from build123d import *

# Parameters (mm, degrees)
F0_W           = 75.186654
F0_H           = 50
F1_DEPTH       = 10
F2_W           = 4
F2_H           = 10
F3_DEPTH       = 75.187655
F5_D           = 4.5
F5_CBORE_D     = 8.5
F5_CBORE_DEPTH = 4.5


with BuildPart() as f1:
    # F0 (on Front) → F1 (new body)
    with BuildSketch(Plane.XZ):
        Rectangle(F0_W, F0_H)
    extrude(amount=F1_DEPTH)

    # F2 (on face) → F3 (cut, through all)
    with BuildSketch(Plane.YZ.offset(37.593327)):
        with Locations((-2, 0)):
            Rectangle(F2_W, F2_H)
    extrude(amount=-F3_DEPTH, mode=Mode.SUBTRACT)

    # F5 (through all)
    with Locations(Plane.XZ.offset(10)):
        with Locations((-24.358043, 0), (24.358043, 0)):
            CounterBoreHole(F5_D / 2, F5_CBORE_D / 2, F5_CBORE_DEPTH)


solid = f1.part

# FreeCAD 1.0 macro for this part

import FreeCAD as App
import Part
import Sketcher
from FreeCAD import Vector
Q = App.Units.Quantity

doc = App.newDocument("Part")
body = doc.addObject("PartDesign::Body", "Body")

# Sketch on XZ plane
sketch1 = doc.addObject("Sketcher::SketchObject", "Sketch")
body.addObject(sketch1)
sketch1.AttachmentSupport = (doc.XZ_Plane, [""])
sketch1.MapMode = "FlatFace"
sketch1.addGeometry([
    Part.LineSegment(Vector(-38, 25, 0), Vector(-38, -25, 0)),
    Part.LineSegment(Vector(-38, -25, 0), Vector(38, -25, 0)),
    Part.LineSegment(Vector(38, -25, 0), Vector(38, 25, 0)),
    Part.LineSegment(Vector(38, 25, 0), Vector(-38, 25, 0)),
], False)
sketch1.addConstraint([
    Sketcher.Constraint("Coincident", 0, 2, 1, 1),
    Sketcher.Constraint("Coincident", 1, 2, 2, 1),
    Sketcher.Constraint("Coincident", 2, 2, 3, 1),
    Sketcher.Constraint("Coincident", 3, 2, 0, 1),
    Sketcher.Constraint("Vertical", 0),
    Sketcher.Constraint("Horizontal", 1),
    Sketcher.Constraint("Vertical", 2),
    Sketcher.Constraint("Horizontal", 3),
    Sketcher.Constraint("Symmetric", 0, 2, 2, 2, -1, 1),
    Sketcher.Constraint("DistanceY", 0, 2, 0, 1, Q("50 mm")),
    Sketcher.Constraint("DistanceX", 1, 1, 1, 2, Q("75.186654 mm")),
])
pad1 = doc.addObject("PartDesign::Pad", "Pad")
body.addObject(pad1)
pad1.Profile = sketch1
pad1.Length = 10

# Sketch on YZ plane
sketch2 = doc.addObject("Sketcher::SketchObject", "Sketch001")
body.addObject(sketch2)
sketch2.AttachmentSupport = (doc.YZ_Plane, [""])
sketch2.MapMode = "FlatFace"
sketch2.AttachmentOffset = App.Placement(Vector(0, 0, 37.593327), App.Rotation())
sketch2.addGeometry([
    Part.LineSegment(Vector(-4, 5, 0), Vector(-4, -5, 0)),
    Part.LineSegment(Vector(-4, -5, 0), Vector(0, -5, 0)),
    Part.LineSegment(Vector(0, -5, 0), Vector(0, 5, 0)),
    Part.LineSegment(Vector(0, 5, 0), Vector(-4, 5, 0)),
], False)
sketch2.addConstraint([
    Sketcher.Constraint("Coincident", 0, 2, 1, 1),
    Sketcher.Constraint("Coincident", 1, 2, 2, 1),
    Sketcher.Constraint("Coincident", 2, 2, 3, 1),
    Sketcher.Constraint("Coincident", 3, 2, 0, 1),
    Sketcher.Constraint("Vertical", 0),
    Sketcher.Constraint("Horizontal", 1),
    Sketcher.Constraint("Vertical", 2),
    Sketcher.Constraint("Horizontal", 3),
    Sketcher.Constraint("Symmetric", 1, 2, 2, 2, -1, 1),
    Sketcher.Constraint("DistanceX", 1, 1, 1, 2, Q("4 mm")),
    Sketcher.Constraint("DistanceY", 0, 2, 0, 1, Q("10 mm")),
])
pocket1 = doc.addObject("PartDesign::Pocket", "Pocket")
body.addObject(pocket1)
pocket1.Profile = sketch2
pocket1.Type = "ThroughAll"

# Sketch on XZ plane
sketch3 = doc.addObject("Sketcher::SketchObject", "Sketch002")
body.addObject(sketch3)
sketch3.AttachmentSupport = (doc.XZ_Plane, [""])
sketch3.MapMode = "FlatFace"
sketch3.AttachmentOffset = App.Placement(Vector(0, 0, 10), App.Rotation())
sketch3.addGeometry([
    Part.Circle(Vector(-24.4, 0, 0), Vector(0, 0, 1), 2.2),
    Part.Circle(Vector(24.4, 0, 0), Vector(0, 0, 1), 2.2),
], False)
sketch3.addConstraint([
    Sketcher.Constraint("Equal", 0, 1),
    Sketcher.Constraint("Symmetric", 0, 3, 1, 3, -1, 1),
    Sketcher.Constraint("PointOnObject", 0, 3, -1),
    Sketcher.Constraint("Diameter", 0, Q("4.5 mm")),
    Sketcher.Constraint("DistanceX", 0, 3, -1, 1, Q("24.358043 mm")),
])
doc.recompute()
hole = doc.addObject("PartDesign::Hole", "Hole")
body.addObject(hole)
hole.Profile = sketch3
hole.ThreadType = "None"
hole.Diameter = 4.5
hole.DepthType = "ThroughAll"
hole.HoleCutType = "Counterbore"
hole.HoleCutDiameter = 8.5
hole.HoleCutDepth = 4.5

doc.recompute()
